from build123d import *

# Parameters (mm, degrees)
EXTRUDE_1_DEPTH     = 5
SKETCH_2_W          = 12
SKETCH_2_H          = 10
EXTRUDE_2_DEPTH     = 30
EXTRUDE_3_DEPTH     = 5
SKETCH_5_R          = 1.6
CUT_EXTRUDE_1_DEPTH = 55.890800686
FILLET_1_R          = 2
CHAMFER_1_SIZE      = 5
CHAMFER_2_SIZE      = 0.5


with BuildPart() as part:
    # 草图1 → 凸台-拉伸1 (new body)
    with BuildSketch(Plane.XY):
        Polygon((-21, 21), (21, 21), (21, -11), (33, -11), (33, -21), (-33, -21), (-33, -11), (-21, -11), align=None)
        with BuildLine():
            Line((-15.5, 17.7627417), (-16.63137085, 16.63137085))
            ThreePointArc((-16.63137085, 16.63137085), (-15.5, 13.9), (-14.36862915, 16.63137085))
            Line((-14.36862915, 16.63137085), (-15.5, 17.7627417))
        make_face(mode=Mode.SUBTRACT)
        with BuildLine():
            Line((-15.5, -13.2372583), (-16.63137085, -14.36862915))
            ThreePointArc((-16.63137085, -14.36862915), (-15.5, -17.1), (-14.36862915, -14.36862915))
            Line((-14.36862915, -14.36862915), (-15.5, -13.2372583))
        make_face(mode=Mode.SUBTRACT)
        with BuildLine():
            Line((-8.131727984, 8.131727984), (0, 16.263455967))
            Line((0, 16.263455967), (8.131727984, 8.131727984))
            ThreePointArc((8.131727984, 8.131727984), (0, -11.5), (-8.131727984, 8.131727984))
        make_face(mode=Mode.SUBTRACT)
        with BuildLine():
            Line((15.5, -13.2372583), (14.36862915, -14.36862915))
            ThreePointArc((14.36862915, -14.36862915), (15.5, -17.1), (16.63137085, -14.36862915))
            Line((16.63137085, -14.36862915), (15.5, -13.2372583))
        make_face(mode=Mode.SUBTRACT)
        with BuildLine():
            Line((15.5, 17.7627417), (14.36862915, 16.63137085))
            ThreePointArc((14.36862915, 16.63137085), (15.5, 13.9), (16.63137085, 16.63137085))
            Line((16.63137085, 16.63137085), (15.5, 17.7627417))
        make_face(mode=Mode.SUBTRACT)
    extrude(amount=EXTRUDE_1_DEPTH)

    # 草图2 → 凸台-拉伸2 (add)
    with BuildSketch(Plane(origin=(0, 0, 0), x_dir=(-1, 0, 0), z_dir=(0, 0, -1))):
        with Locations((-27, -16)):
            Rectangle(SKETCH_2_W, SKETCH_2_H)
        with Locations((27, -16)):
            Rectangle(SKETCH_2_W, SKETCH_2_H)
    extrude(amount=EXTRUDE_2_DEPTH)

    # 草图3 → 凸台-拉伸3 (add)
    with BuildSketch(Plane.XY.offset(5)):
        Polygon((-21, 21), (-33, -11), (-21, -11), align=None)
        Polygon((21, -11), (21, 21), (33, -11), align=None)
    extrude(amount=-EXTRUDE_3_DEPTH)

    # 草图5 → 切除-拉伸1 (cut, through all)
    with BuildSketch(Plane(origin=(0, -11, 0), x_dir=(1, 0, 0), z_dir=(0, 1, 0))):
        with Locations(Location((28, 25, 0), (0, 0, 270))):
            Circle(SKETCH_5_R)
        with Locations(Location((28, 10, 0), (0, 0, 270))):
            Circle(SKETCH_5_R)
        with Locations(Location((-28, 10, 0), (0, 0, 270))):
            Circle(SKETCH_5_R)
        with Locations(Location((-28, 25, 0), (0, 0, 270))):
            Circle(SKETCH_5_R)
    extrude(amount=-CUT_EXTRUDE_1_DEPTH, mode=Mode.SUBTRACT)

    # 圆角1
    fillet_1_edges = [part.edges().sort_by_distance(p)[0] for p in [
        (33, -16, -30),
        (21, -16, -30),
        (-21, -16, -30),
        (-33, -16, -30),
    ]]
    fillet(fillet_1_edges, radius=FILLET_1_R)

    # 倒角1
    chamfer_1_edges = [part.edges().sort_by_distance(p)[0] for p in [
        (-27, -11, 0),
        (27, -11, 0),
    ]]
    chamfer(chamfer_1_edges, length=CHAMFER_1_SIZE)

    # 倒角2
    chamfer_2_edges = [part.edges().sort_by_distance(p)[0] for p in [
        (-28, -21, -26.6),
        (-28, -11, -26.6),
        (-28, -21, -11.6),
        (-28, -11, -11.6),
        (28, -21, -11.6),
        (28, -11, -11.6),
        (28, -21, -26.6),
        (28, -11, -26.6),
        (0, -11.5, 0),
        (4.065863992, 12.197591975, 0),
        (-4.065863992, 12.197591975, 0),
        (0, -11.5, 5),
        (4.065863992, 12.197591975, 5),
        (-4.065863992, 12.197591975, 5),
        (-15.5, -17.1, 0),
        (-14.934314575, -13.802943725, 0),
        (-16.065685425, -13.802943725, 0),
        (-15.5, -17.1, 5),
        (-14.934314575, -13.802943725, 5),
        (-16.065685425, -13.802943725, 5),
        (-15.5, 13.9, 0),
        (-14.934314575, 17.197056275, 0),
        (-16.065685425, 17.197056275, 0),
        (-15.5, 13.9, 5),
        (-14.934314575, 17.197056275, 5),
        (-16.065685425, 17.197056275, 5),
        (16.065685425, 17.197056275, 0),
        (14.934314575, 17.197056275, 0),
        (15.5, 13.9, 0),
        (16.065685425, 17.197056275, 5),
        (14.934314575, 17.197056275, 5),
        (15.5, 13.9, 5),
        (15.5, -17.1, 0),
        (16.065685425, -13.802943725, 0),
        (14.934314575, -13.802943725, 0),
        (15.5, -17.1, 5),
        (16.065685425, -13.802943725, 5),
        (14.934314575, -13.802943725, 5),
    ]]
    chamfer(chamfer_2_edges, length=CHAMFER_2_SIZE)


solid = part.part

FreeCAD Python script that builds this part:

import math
import FreeCAD as App
import Part
import Sketcher

V = App.Vector
Q = App.Units.Quantity


def edges_at(feature, points):
    """Names of the edges that pass closest to the given points."""
    edges = feature.Shape.Edges
    near = lambda p: min(range(len(edges)), key=lambda i: edges[i].distToShape(Part.Vertex(*p))[0])
    return sorted({f"Edge{near(p) + 1}" for p in points})


def add_polygon(sketch, points):
    """Adds a closed chain of lines whose ends are joined by coincident constraints."""
    first, n = sketch.GeometryCount, len(points)
    for a, b in zip(points, points[1:] + points[:1]):
        sketch.addGeometry(Part.LineSegment(App.Vector(*a, 0), App.Vector(*b, 0)), False)
    for i in range(n):
        sketch.addConstraint(Sketcher.Constraint("Coincident", first + i, 2, first + (i + 1) % n, 1))

doc = App.newDocument("Part")
body = doc.addObject("PartDesign::Body", "Body")

# Sketch on XY plane
sketch1 = body.newObject("Sketcher::SketchObject", "Sketch")
sketch1.AttachmentSupport = (doc.getObject("XY_Plane"), [""])
sketch1.MapMode = "FlatFace"
add_polygon(sketch1, [(21, 21), (-21, 21), (-21, -11), (-33, -11), (-33, -21), (33, -21), (33, -11), (21, -11)])  # lines 0-7
sketch1.addGeometry(Part.LineSegment(V(15.5, -13.2, 0), V(16.6, -14.4, 0)), False)  # 8
sketch1.addGeometry(Part.ArcOfCircle(Part.Circle(V(15.5, -15.5, 0), V(0, 0, 1), 1.6), math.radians(135), math.radians(405)), False)  # 9
sketch1.addGeometry(Part.LineSegment(V(14.4, -14.4, 0), V(15.5, -13.2, 0)), False)  # 10
sketch1.addGeometry(Part.LineSegment(V(-15.5, -13.2, 0), V(-14.4, -14.4, 0)), False)  # 11
sketch1.addGeometry(Part.ArcOfCircle(Part.Circle(V(-15.5, -15.5, 0), V(0, 0, 1), 1.6), math.radians(135), math.radians(405)), False)  # 12
sketch1.addGeometry(Part.LineSegment(V(-16.6, -14.4, 0), V(-15.5, -13.2, 0)), False)  # 13
sketch1.addGeometry(Part.LineSegment(V(15.5, 17.8, 0), V(16.6, 16.6, 0)), False)  # 14
sketch1.addGeometry(Part.ArcOfCircle(Part.Circle(V(15.5, 15.5, 0), V(0, 0, 1), 1.6), math.radians(135), math.radians(405)), False)  # 15
sketch1.addGeometry(Part.LineSegment(V(14.4, 16.6, 0), V(15.5, 17.8, 0)), False)  # 16
sketch1.addGeometry(Part.LineSegment(V(-8.1, 8.1, 0), V(0, 16.3, 0)), False)  # 17
sketch1.addGeometry(Part.LineSegment(V(0, 16.3, 0), V(8.1, 8.1, 0)), False)  # 18
sketch1.addGeometry(Part.ArcOfCircle(Part.Circle(V(0, 0, 0), V(0, 0, 1), 11.5), math.radians(135), math.radians(405)), False)  # 19
sketch1.addGeometry(Part.LineSegment(V(-15.5, 17.8, 0), V(-14.4, 16.6, 0)), False)  # 20
sketch1.addGeometry(Part.ArcOfCircle(Part.Circle(V(-15.5, 15.5, 0), V(0, 0, 1), 1.6), math.radians(135), math.radians(405)), False)  # 21
sketch1.addGeometry(Part.LineSegment(V(-16.6, 16.6, 0), V(-15.5, 17.8, 0)), False)  # 22
sketch1.addConstraint([
    Sketcher.Constraint("Tangent", 8, 2, 9, 2),
    Sketcher.Constraint("Tangent", 9, 1, 10, 1),
    Sketcher.Constraint("Coincident", 10, 2, 8, 1),
    Sketcher.Constraint("Tangent", 11, 2, 12, 2),
    Sketcher.Constraint("Tangent", 12, 1, 13, 1),
    Sketcher.Constraint("Coincident", 13, 2, 11, 1),
    Sketcher.Constraint("Tangent", 14, 2, 15, 2),
    Sketcher.Constraint("Tangent", 15, 1, 16, 1),
    Sketcher.Constraint("Coincident", 16, 2, 14, 1),
    Sketcher.Constraint("Coincident", 17, 2, 18, 1),
    Sketcher.Constraint("Tangent", 18, 2, 19, 2),
    Sketcher.Constraint("Tangent", 19, 1, 17, 1),
    Sketcher.Constraint("Tangent", 20, 2, 21, 2),
    Sketcher.Constraint("Tangent", 21, 1, 22, 1),
    Sketcher.Constraint("Coincident", 22, 2, 20, 1),
    Sketcher.Constraint("Horizontal", 0),
    Sketcher.Constraint("Vertical", 1),
    Sketcher.Constraint("Horizontal", 2),
    Sketcher.Constraint("Vertical", 3),
    Sketcher.Constraint("Horizontal", 4),
    Sketcher.Constraint("Vertical", 5),
    Sketcher.Constraint("Horizontal", 6),
    Sketcher.Constraint("Vertical", 7),
    Sketcher.Constraint("Coincident", 19, 3, -1, 1),
    Sketcher.Constraint("Equal", 9, 12),
    Sketcher.Constraint("Equal", 12, 15),
    Sketcher.Constraint("Equal", 15, 21),
    Sketcher.Constraint("Symmetric", 12, 3, 15, 3, -1, 1),
    Sketcher.Constraint("Symmetric", 9, 3, 21, 3, -1, 1),
    Sketcher.Constraint("Symmetric", 9, 3, 12, 3, -2),
    Sketcher.Constraint("Symmetric", 2, 2, 5, 2, -2),
    Sketcher.Constraint("Symmetric", 10, 2, 13, 2, -2),
    Sketcher.Constraint("Symmetric", 16, 2, 22, 2, -2),
    Sketcher.Constraint("PointOnObject", 17, 2, -2),
    Sketcher.Constraint("Perpendicular", 8, 10),
    Sketcher.Constraint("Perpendicular", 10, 11),
    Sketcher.Constraint("Perpendicular", 13, 14),
    Sketcher.Constraint("Perpendicular", 14, 16),
    Sketcher.Constraint("Parallel", 16, 17),
    Sketcher.Constraint("Equal", 2, 6),
    Sketcher.Constraint("Radius", 9, Q("1.6 mm")),
    Sketcher.Constraint("Radius", 19, Q("11.5 mm")),
    Sketcher.Constraint("DistanceX", 0, 2, 0, 1, Q("42 mm")),
    Sketcher.Constraint("DistanceX", 2, 2, 2, 1, Q("12 mm")),
    Sketcher.Constraint("DistanceY", 1, 2, 1, 1, Q("32 mm")),
    Sketcher.Constraint("DistanceY", 3, 2, 3, 1, Q("10 mm")),
    Sketcher.Constraint("DistanceY", -1, 1, 0, 2, Q("21 mm")),
    Sketcher.Constraint("DistanceX", 12, 3, 9, 3, Q("31 mm")),
    Sketcher.Constraint("DistanceY", 9, 3, 15, 3, Q("31 mm")),
])
pad1 = body.newObject("PartDesign::Pad", "Pad")
pad1.Profile = sketch1
pad1.Length = 5

# Sketch on XY plane
sketch2 = body.newObject("Sketcher::SketchObject", "Sketch001")
sketch2.AttachmentSupport = (doc.getObject("XY_Plane"), [""])
sketch2.MapMode = "FlatFace"
add_polygon(sketch2, [(33, -11), (33, -21), (21, -21), (21, -11)])  # lines 0-3
add_polygon(sketch2, [(-21, -11), (-21, -21), (-33, -21), (-33, -11)])  # lines 4-7
sketch2.addConstraint([
    Sketcher.Constraint("Vertical", 0),
    Sketcher.Constraint("Horizontal", 1),
    Sketcher.Constraint("Vertical", 2),
    Sketcher.Constraint("Horizontal", 3),
    Sketcher.Constraint("Vertical", 4),
    Sketcher.Constraint("Horizontal", 5),
    Sketcher.Constraint("Vertical", 6),
    Sketcher.Constraint("Horizontal", 7),
    Sketcher.Constraint("Symmetric", 1, 2, 4, 2, -2),
    Sketcher.Constraint("Symmetric", 3, 2, 6, 2, -2),
    Sketcher.Constraint("DistanceX", 1, 2, 1, 1, Q("12 mm")),
    Sketcher.Constraint("DistanceY", 0, 2, 0, 1, Q("10 mm")),
    Sketcher.Constraint("DistanceX", -1, 1, 0, 2, Q("33 mm")),
    Sketcher.Constraint("DistanceY", 0, 2, -1, 1, Q("21 mm")),
])
pad2 = body.newObject("PartDesign::Pad", "Pad001")
pad2.Profile = sketch2
pad2.Length = 30
pad2.Reversed = True

# Sketch on XY plane
sketch3 = body.newObject("Sketcher::SketchObject", "Sketch002")
sketch3.AttachmentSupport = (doc.getObject("XY_Plane"), [""])
sketch3.MapMode = "FlatFace"
sketch3.AttachmentOffset = App.Placement(V(0, 0, 5), App.Rotation())
add_polygon(sketch3, [(-21, 21), (-33, -11), (-21, -11)])  # lines 0-2
add_polygon(sketch3, [(21, 21), (21, -11), (33, -11)])  # lines 3-5
sketch3.addConstraint([
    Sketcher.Constraint("Horizontal", 1),
    Sketcher.Constraint("Vertical", 2),
    Sketcher.Constraint("Vertical", 3),
    Sketcher.Constraint("Horizontal", 4),
    Sketcher.Constraint("Symmetric", 1, 2, 3, 2, -2),
    Sketcher.Constraint("Horizontal", 2, 2, 5, 2),
    Sketcher.Constraint("Equal", 1, 4),
    Sketcher.Constraint("DistanceX", 1, 1, 1, 2, Q("12 mm")),
    Sketcher.Constraint("DistanceY", 2, 1, 2, 2, Q("32 mm")),
    Sketcher.Constraint("DistanceX", 0, 2, -1, 1, Q("33 mm")),
    Sketcher.Constraint("DistanceY", 0, 2, -1, 1, Q("11 mm")),
])
pad3 = body.newObject("PartDesign::Pad", "Pad002")
pad3.Profile = sketch3
pad3.Length = 5
pad3.Reversed = True

# Sketch on XZ plane
sketch4 = body.newObject("Sketcher::SketchObject", "Sketch003")
sketch4.AttachmentSupport = (doc.getObject("XZ_Plane"), [""])
sketch4.MapMode = "FlatFace"
sketch4.AttachmentOffset = App.Placement(V(0, 0, 11), App.Rotation())
sketch4.addGeometry([
    Part.Circle(V(28, -25, 0), V(0, 0, 1), 1.6),
    Part.Circle(V(28, -10, 0), V(0, 0, 1), 1.6),
    Part.Circle(V(-28, -10, 0), V(0, 0, 1), 1.6),
    Part.Circle(V(-28, -25, 0), V(0, 0, 1), 1.6),
], False)
sketch4.addConstraint([
    Sketcher.Constraint("Equal", 0, 1),
    Sketcher.Constraint("Equal", 1, 2),
    Sketcher.Constraint("Equal", 2, 3),
    Sketcher.Constraint("Symmetric", 1, 3, 2, 3, -2),
    Sketcher.Constraint("Symmetric", 0, 3, 3, 3, -2),
    Sketcher.Constraint("Vertical", 0, 3, 1, 3),
    Sketcher.Constraint("Diameter", 0, Q("3.2 mm")),
    Sketcher.Constraint("DistanceX", -1, 1, 0, 3, Q("28 mm")),
    Sketcher.Constraint("DistanceY", 0, 3, -1, 1, Q("25 mm")),
    Sketcher.Constraint("DistanceY", 1, 3, -1, 1, Q("10 mm")),
])
pocket1 = body.newObject("PartDesign::Pocket", "Pocket")
pocket1.Profile = sketch4
pocket1.Type = "ThroughAll"
pocket1.Reversed = True
doc.recompute()

fillet = body.newObject("PartDesign::Fillet", "Fillet")
fillet.Base = (pocket1, edges_at(pocket1, [
    (33, -16, -30),
    (21, -16, -30),
    (-21, -16, -30),
    (-33, -16, -30),
]))
fillet.Radius = 2
doc.recompute()

chamfer = body.newObject("PartDesign::Chamfer", "Chamfer")
chamfer.Base = (fillet, edges_at(fillet, [(-27, -11, 0), (27, -11, 0)]))
chamfer.Size = 5
doc.recompute()

chamfer2 = body.newObject("PartDesign::Chamfer", "Chamfer001")
chamfer2.Base = (chamfer, edges_at(chamfer, [
    (-28, -21, -26.6),
    (-28, -11, -26.6),
    (-28, -21, -11.6),
    (-28, -11, -11.6),
    (28, -21, -11.6),
    (28, -11, -11.6),
    (28, -21, -26.6),
    (28, -11, -26.6),
    (0, -11.5, 0),
    (4.066, 12.198, 0),
    (-4.066, 12.198, 0),
    (0, -11.5, 5),
    (4.066, 12.198, 5),
    (-4.066, 12.198, 5),
    (-15.5, -17.1, 0),
    (-14.934, -13.803, 0),
    (-16.066, -13.803, 0),
    (-15.5, -17.1, 5),
    (-14.934, -13.803, 5),
    (-16.066, -13.803, 5),
    (-15.5, 13.9, 0),
    (-14.934, 17.197, 0),
    (-16.066, 17.197, 0),
    (-15.5, 13.9, 5),
    (-14.934, 17.197, 5),
    (-16.066, 17.197, 5),
    (16.066, 17.197, 0),
    (14.934, 17.197, 0),
    (15.5, 13.9, 0),
    (16.066, 17.197, 5),
    (14.934, 17.197, 5),
    (15.5, 13.9, 5),
    (15.5, -17.1, 0),
    (16.066, -13.803, 0),
    (14.934, -13.803, 0),
    (15.5, -17.1, 5),
    (16.066, -13.803, 5),
    (14.934, -13.803, 5),
]))
chamfer2.Size = 0.5

doc.recompute()
